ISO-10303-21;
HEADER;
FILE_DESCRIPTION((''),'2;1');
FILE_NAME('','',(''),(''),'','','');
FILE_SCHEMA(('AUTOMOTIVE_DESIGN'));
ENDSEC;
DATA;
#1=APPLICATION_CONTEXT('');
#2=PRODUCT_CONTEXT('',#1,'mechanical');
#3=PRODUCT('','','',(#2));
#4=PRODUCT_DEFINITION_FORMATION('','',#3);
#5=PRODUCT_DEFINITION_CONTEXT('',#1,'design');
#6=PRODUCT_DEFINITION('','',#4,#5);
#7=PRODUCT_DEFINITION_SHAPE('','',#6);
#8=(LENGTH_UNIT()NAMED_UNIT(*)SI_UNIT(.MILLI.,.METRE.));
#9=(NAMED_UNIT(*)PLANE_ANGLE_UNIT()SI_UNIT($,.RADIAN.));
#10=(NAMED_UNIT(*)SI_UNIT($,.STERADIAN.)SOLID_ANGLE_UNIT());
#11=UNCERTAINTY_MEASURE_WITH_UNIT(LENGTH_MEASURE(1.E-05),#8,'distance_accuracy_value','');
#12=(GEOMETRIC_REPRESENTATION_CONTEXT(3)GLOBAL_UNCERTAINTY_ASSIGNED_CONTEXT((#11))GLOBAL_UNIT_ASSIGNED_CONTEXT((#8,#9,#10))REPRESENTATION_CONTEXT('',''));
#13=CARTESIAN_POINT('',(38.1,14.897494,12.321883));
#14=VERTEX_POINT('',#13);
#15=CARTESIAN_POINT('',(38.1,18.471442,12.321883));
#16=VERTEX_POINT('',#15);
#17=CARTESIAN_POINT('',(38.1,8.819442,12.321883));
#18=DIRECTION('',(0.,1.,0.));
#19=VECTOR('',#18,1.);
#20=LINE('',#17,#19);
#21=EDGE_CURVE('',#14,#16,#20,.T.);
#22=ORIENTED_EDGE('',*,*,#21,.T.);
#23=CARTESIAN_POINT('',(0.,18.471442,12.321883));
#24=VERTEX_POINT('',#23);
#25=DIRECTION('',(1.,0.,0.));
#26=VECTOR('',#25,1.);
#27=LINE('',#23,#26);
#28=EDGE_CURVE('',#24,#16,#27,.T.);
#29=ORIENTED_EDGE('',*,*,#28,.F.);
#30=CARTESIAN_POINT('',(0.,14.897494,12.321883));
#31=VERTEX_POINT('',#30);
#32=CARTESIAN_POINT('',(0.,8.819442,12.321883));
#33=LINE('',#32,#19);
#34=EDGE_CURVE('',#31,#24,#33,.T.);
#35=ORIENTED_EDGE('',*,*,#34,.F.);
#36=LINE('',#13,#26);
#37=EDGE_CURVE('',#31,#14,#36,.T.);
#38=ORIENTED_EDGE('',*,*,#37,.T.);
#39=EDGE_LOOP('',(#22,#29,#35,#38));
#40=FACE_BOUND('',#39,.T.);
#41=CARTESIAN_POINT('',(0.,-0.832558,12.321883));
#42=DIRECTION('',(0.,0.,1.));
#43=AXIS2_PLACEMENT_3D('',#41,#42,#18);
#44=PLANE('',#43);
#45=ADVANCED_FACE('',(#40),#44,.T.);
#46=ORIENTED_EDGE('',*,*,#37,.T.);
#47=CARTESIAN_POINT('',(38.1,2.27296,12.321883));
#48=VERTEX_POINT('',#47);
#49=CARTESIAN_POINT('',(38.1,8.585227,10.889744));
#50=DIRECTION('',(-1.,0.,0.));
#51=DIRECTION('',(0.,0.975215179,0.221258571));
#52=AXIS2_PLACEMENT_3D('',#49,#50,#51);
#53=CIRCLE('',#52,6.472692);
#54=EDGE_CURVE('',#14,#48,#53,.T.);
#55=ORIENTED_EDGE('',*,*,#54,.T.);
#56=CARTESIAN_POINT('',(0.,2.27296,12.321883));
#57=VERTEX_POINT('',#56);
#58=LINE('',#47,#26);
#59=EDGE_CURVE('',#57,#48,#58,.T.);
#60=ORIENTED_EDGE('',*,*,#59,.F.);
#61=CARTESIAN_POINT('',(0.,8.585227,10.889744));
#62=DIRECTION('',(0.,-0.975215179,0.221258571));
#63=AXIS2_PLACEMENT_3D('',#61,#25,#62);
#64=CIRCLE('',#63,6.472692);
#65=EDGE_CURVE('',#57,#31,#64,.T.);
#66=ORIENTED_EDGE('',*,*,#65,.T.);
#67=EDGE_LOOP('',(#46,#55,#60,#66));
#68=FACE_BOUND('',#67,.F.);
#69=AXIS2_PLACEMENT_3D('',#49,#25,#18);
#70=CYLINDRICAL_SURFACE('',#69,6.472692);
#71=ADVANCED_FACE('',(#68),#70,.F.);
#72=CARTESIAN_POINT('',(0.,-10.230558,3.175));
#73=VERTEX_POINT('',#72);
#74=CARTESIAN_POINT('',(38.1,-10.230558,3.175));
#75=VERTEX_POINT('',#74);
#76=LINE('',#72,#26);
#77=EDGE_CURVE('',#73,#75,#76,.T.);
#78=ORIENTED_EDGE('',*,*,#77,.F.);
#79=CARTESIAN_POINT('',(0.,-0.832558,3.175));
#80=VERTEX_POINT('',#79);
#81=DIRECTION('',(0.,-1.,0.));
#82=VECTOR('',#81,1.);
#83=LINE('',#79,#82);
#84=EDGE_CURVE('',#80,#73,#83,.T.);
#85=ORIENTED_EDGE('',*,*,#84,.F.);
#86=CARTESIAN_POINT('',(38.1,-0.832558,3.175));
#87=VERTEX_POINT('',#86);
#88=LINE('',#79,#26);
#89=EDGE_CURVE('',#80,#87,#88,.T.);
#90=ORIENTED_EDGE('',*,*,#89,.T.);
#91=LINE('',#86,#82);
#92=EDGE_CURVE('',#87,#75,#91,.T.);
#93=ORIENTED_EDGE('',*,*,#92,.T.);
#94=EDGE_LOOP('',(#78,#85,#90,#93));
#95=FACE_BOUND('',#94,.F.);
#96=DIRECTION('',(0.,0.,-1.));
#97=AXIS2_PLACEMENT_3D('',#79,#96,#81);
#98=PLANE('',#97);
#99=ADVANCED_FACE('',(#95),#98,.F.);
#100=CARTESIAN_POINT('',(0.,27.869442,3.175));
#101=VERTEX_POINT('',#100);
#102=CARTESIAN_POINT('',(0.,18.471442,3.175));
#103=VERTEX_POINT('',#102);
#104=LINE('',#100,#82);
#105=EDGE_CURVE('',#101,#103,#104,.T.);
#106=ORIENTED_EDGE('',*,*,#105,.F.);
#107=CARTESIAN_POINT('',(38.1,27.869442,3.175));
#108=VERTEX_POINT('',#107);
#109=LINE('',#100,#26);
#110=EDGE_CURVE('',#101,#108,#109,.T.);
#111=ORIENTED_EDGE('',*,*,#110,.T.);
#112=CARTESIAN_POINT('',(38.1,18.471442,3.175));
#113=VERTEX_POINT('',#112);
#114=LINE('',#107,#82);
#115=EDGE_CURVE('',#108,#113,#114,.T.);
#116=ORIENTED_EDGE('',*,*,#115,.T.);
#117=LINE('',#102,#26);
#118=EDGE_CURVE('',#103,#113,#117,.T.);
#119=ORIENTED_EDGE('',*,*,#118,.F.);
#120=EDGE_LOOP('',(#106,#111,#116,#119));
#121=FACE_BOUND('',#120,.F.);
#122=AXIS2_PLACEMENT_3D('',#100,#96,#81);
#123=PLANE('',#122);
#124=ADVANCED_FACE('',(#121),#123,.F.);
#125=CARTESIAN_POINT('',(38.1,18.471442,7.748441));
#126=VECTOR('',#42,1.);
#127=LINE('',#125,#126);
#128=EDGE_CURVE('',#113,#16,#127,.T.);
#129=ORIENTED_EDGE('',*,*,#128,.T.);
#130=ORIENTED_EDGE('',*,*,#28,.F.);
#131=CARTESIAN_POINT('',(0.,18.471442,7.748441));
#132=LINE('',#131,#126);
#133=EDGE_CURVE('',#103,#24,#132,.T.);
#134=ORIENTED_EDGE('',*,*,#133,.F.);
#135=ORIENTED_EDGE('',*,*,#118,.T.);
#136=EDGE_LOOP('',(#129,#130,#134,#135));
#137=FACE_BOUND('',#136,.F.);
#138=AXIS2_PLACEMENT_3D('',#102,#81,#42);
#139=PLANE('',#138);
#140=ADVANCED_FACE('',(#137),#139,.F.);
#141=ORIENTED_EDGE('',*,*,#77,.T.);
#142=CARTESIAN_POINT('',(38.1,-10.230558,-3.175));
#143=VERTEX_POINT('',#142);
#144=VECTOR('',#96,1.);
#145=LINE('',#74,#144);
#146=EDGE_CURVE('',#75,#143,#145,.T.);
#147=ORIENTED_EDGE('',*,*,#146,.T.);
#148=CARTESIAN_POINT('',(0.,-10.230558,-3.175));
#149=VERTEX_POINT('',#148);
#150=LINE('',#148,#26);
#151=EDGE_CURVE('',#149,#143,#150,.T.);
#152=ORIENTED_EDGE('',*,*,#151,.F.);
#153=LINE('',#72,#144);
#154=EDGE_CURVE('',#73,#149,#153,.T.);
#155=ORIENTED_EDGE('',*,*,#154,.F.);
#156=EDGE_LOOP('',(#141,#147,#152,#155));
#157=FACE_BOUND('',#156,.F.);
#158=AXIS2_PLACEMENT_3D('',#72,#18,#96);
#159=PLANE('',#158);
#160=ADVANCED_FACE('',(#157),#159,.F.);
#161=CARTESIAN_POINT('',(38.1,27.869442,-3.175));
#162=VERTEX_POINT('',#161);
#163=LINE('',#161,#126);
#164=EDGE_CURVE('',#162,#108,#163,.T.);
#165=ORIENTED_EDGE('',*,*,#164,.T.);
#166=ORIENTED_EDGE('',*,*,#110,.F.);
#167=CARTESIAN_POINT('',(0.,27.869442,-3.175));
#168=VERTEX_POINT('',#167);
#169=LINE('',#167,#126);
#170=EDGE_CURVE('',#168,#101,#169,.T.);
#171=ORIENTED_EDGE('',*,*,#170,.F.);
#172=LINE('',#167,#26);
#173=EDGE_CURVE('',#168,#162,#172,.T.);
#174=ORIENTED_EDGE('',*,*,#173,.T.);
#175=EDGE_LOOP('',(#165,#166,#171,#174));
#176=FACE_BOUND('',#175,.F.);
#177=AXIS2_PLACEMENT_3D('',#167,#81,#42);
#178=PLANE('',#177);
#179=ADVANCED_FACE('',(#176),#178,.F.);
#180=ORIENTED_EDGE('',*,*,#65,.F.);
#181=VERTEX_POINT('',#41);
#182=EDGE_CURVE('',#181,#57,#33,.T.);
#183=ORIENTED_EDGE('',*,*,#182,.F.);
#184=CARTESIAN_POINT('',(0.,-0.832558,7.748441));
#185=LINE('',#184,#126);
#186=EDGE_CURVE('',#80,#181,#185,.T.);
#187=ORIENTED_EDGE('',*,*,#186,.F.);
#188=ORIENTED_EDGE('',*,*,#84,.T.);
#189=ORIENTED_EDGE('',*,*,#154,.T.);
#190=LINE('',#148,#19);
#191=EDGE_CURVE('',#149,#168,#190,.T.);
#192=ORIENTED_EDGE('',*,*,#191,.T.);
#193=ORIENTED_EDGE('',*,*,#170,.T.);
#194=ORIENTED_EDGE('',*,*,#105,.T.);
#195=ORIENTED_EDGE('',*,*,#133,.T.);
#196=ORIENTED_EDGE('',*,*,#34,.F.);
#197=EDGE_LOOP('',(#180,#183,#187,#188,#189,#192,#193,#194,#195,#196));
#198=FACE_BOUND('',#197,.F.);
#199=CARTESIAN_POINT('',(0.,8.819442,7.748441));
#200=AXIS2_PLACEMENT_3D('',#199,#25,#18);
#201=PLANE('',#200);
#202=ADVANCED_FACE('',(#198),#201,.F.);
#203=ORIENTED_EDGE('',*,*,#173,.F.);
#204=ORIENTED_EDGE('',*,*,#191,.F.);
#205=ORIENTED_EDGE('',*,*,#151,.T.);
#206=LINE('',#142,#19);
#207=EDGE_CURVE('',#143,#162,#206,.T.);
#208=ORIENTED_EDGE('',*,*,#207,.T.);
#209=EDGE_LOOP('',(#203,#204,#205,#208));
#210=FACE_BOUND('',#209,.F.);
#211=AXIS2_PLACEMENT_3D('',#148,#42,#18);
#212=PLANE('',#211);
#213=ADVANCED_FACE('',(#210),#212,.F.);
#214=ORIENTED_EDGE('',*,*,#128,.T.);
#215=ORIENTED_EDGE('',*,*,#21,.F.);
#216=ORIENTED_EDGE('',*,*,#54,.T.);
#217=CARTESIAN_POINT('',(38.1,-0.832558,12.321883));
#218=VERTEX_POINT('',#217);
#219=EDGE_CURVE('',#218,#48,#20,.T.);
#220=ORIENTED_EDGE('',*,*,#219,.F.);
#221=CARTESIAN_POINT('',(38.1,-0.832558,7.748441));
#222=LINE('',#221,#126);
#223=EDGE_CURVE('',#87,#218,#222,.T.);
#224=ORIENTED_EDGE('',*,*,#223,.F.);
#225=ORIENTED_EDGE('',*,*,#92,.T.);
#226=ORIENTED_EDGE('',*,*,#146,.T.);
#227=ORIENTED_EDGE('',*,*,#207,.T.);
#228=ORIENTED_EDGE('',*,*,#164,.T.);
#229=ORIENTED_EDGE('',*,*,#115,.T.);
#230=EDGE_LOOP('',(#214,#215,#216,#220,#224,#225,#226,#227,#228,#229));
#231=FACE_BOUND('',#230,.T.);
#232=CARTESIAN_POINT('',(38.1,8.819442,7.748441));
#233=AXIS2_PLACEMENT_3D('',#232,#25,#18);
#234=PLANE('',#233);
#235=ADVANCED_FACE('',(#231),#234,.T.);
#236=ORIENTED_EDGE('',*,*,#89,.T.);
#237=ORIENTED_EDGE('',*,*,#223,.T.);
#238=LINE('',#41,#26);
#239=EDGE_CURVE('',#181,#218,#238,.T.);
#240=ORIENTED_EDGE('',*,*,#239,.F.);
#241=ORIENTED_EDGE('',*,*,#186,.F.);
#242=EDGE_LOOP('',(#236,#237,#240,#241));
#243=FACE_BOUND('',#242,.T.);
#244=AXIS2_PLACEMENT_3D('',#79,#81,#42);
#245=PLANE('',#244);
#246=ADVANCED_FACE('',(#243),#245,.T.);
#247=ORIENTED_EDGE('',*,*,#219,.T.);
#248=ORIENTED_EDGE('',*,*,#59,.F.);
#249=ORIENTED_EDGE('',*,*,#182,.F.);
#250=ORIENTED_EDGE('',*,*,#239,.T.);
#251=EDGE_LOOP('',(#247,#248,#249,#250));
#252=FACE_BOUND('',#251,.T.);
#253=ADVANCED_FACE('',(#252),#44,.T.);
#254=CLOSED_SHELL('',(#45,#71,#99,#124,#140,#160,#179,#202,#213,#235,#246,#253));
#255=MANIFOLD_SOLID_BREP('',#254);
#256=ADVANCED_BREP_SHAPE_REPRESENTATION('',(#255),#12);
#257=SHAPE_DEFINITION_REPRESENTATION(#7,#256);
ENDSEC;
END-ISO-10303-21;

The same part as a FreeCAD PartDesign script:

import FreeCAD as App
import Part
import Sketcher
from FreeCAD import Vector
Q = App.Units.Quantity


def add_polygon(sketch, points):
    """Adds a closed chain of lines whose ends are joined by coincident constraints."""
    first, n = sketch.GeometryCount, len(points)
    for a, b in zip(points, points[1:] + points[:1]):
        sketch.addGeometry(Part.LineSegment(App.Vector(*a, 0), App.Vector(*b, 0)), False)
    for i in range(n):
        sketch.addConstraint(Sketcher.Constraint("Coincident", first + i, 2, first + (i + 1) % n, 1))

doc = App.newDocument("Part")
body = doc.addObject("PartDesign::Body", "Body")

# Sketch on YZ plane
sketch1 = body.newObject("Sketcher::SketchObject", "Sketch")
sketch1.AttachmentSupport = (doc.getObject("YZ_Plane"), [""])
sketch1.MapMode = "FlatFace"
add_polygon(sketch1, [(-0.832558, 12.321883), (-0.832558, 3.175), (-10.230558, 3.175), (-10.230558, -3.175), (27.869442, -3.175), (27.869442, 3.175), (18.471442, 3.175), (18.471442, 12.321883)])  # lines 0-7
sketch1.addConstraint([
    Sketcher.Constraint("Vertical", 0),
    Sketcher.Constraint("Horizontal", 1),
    Sketcher.Constraint("Vertical", 2),
    Sketcher.Constraint("Horizontal", 3),
    Sketcher.Constraint("Vertical", 4),
    Sketcher.Constraint("Horizontal", 5),
    Sketcher.Constraint("Vertical", 6),
    Sketcher.Constraint("Horizontal", 7),
    Sketcher.Constraint("Horizontal", 1, 2, 4, 2),
    Sketcher.Constraint("Equal", 1, 5),
    Sketcher.Constraint("DistanceX", 3, 1, 3, 2, Q("1.5 in")),
    Sketcher.Constraint("DistanceX", 1, 2, 1, 1, Q("0.37 in")),
    Sketcher.Constraint("DistanceY", 2, 2, 2, 1, Q("0.25 in")),
    Sketcher.Constraint("DistanceY", -1, 1, 0, 2, Q("0.125 in")),
    Sketcher.Constraint("DistanceY", 0, 2, 0, 1, Q("9.146883 mm")),
    Sketcher.Constraint("DistanceX", 0, 2, -1, 1, Q("0.832558 mm")),
])
pad1 = body.newObject("PartDesign::Pad", "Pad")
pad1.Profile = sketch1
pad1.Length = Q("1.5 in")

# Sketch on YZ plane
sketch2 = body.newObject("Sketcher::SketchObject", "Sketch001")
sketch2.AttachmentSupport = (doc.getObject("YZ_Plane"), [""])
sketch2.MapMode = "FlatFace"
sketch2.AttachmentOffset = App.Placement(Vector(0, 0, 1.5 * 25.4), App.Rotation())
sketch2.addGeometry(Part.Circle(Vector(8.585227, 10.889744, 0), Vector(0, 0, 1), 6.472692), False)
sketch2.addConstraint([
    Sketcher.Constraint("Diameter", 0, Q("12.945383 mm")),
    Sketcher.Constraint("DistanceX", -1, 1, 0, 3, Q("8.585227 mm")),
    Sketcher.Constraint("DistanceY", -1, 1, 0, 3, Q("10.889744 mm")),
])
pocket1 = body.newObject("PartDesign::Pocket", "Pocket")
pocket1.Profile = sketch2
pocket1.Length = Q("1.5 in")

doc.recompute()
